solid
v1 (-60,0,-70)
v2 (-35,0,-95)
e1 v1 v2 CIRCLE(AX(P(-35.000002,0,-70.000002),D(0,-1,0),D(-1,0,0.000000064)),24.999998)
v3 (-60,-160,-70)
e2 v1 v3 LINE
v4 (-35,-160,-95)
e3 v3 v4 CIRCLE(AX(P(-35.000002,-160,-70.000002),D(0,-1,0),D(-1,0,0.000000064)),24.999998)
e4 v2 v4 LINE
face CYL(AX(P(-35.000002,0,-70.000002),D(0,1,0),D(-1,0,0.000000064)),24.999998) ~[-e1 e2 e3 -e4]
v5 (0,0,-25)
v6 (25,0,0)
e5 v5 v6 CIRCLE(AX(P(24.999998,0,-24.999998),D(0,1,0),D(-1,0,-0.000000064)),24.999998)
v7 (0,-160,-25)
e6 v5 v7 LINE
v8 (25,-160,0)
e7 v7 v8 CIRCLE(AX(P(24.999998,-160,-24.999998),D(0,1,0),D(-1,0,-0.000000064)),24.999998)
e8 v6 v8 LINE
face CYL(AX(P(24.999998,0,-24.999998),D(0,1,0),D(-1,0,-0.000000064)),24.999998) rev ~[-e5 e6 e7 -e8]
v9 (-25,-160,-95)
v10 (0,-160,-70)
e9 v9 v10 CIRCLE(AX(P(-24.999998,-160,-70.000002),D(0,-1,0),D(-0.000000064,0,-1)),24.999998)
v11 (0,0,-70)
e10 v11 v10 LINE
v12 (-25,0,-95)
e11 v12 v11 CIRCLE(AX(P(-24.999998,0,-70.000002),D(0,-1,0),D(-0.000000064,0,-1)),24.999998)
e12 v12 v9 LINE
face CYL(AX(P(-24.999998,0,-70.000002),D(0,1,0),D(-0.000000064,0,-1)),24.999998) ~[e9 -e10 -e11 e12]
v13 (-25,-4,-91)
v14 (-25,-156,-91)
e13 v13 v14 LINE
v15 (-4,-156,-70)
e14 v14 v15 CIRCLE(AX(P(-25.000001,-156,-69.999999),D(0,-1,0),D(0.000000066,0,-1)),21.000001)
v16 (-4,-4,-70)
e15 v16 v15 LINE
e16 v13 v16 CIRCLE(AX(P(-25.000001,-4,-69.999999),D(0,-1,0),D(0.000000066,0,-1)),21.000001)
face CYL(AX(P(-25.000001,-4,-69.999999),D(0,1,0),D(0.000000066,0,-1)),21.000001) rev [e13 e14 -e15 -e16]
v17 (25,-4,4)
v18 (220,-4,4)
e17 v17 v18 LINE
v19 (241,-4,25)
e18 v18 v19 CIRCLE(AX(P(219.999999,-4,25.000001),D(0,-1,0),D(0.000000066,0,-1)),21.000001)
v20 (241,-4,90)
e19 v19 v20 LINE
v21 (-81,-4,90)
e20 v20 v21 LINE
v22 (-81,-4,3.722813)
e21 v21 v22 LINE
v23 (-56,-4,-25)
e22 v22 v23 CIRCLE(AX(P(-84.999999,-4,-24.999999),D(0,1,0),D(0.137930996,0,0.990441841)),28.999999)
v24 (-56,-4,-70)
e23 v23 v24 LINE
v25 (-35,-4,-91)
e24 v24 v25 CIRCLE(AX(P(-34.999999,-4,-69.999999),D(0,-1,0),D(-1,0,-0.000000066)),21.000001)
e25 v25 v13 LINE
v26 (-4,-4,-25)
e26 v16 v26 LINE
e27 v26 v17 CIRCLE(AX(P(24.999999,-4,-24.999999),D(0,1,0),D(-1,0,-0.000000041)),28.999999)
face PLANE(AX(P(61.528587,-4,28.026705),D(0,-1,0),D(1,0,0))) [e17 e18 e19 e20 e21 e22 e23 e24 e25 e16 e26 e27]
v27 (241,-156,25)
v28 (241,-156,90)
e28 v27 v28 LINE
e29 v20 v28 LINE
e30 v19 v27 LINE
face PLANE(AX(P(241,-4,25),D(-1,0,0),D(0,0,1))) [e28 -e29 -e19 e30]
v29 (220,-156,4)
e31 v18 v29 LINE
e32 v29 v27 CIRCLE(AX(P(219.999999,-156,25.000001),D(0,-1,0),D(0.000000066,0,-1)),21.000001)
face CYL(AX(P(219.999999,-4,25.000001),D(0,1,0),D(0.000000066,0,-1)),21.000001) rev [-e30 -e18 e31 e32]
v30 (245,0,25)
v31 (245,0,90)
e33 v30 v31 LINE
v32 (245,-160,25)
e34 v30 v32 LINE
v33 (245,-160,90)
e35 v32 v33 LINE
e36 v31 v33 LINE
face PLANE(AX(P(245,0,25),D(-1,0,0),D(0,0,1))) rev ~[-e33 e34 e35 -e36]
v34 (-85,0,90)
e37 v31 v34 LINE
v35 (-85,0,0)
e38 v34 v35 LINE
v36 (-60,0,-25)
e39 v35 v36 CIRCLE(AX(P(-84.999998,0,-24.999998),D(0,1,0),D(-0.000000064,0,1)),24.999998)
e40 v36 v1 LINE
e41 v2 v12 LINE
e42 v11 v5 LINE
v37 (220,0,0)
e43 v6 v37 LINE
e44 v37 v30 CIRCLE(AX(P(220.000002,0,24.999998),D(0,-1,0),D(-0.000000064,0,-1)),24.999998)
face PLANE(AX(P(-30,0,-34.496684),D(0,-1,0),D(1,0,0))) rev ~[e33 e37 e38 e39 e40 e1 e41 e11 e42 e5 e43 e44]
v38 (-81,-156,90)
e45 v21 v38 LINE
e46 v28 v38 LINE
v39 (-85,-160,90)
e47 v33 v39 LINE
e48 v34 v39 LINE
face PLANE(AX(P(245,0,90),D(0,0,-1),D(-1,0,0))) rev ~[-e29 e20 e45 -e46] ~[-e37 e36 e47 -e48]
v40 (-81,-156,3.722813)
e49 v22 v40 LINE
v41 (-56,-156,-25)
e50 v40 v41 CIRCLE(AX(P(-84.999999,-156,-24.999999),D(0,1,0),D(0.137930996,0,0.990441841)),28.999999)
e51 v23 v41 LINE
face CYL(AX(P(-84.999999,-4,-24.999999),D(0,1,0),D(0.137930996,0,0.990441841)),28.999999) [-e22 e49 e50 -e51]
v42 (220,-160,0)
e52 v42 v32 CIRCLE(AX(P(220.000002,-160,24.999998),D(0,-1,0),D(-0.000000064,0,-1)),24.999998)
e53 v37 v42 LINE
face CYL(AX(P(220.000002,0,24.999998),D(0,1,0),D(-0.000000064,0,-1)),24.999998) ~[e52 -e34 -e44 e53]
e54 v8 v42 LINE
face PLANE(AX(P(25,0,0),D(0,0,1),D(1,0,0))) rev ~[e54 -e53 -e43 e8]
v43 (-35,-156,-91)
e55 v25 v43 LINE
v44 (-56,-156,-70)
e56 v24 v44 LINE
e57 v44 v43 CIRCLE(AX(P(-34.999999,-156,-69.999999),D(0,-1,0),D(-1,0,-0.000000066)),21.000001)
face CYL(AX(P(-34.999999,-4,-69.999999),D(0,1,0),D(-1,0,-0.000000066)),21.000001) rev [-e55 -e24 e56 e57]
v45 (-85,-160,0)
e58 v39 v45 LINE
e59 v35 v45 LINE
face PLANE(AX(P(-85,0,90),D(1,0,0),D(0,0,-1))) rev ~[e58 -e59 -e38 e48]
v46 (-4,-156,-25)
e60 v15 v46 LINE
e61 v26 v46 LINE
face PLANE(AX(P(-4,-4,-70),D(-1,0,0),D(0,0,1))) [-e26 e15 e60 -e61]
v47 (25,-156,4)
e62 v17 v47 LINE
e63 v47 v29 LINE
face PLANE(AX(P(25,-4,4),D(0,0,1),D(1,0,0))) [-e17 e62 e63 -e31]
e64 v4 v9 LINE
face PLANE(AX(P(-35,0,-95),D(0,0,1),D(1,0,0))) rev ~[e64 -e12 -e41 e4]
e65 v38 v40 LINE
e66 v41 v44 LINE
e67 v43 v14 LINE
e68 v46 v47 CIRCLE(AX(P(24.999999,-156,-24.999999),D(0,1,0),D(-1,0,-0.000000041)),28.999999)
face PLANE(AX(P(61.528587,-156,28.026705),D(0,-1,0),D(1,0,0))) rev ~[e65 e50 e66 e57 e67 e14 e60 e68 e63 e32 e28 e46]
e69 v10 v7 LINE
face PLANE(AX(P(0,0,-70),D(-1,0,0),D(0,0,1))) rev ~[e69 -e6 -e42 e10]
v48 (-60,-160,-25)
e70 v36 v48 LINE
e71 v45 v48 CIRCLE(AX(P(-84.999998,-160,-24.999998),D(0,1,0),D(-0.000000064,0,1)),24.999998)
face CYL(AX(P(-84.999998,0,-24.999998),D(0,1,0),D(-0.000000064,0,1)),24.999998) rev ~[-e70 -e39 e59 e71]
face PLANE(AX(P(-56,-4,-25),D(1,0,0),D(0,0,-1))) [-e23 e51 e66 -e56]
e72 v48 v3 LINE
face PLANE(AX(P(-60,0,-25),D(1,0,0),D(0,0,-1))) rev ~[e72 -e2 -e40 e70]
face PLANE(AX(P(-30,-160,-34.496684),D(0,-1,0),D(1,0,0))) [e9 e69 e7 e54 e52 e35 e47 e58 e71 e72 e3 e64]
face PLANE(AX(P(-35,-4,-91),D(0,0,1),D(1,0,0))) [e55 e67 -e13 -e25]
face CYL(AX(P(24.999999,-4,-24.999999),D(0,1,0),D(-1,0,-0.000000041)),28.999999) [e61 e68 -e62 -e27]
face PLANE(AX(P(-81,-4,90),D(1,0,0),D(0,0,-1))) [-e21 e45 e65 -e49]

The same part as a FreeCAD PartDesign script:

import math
import FreeCAD as App
import Part
import Sketcher

V = App.Vector

doc = App.newDocument("Part")
body = doc.addObject("PartDesign::Body", "Body")

# Sketch on XZ plane
sketch1 = body.newObject("Sketcher::SketchObject", "Sketch")
sketch1.AttachmentSupport = (doc.getObject("XZ_Plane"), [""])
sketch1.MapMode = "FlatFace"
sketch1.addGeometry(Part.LineSegment(V(0, -70, 0), V(0, -25, 0)), False)
sketch1.addGeometry(Part.ArcOfCircle(Part.Circle(V(25, -25, 0), V(0, 0, 1), 25), math.radians(90), math.radians(180)), False)
sketch1.addGeometry(Part.LineSegment(V(25, 0, 0), V(220, 0, 0)), False)
sketch1.addGeometry(Part.ArcOfCircle(Part.Circle(V(220, 25, 0), V(0, 0, 1), 25), math.radians(-90), math.radians(0)), False)
sketch1.addGeometry(Part.LineSegment(V(245, 25, 0), V(245, 90, 0)), False)
sketch1.addGeometry(Part.LineSegment(V(245, 90, 0), V(-85, 90, 0)), False)
sketch1.addGeometry(Part.LineSegment(V(-85, 90, 0), V(-85, 0, 0)), False)
sketch1.addGeometry(Part.ArcOfCircle(Part.Circle(V(-85, -25, 0), V(0, 0, 1), 25), math.radians(0), math.radians(90)), False)
sketch1.addGeometry(Part.LineSegment(V(-60, -25, 0), V(-60, -70, 0)), False)
sketch1.addGeometry(Part.ArcOfCircle(Part.Circle(V(-35, -70, 0), V(0, 0, 1), 25), math.radians(180), math.radians(270)), False)
sketch1.addGeometry(Part.LineSegment(V(-35, -95, 0), V(-25, -95, 0)), False)
sketch1.addGeometry(Part.ArcOfCircle(Part.Circle(V(-25, -70, 0), V(0, 0, 1), 25), math.radians(-90), math.radians(0)), False)
sketch1.addConstraint(Sketcher.Constraint("Tangent", 0, 2, 1, 2))
sketch1.addConstraint(Sketcher.Constraint("Tangent", 1, 1, 2, 1))
sketch1.addConstraint(Sketcher.Constraint("Tangent", 2, 2, 3, 1))
sketch1.addConstraint(Sketcher.Constraint("Tangent", 3, 2, 4, 1))
sketch1.addConstraint(Sketcher.Constraint("Coincident", 4, 2, 5, 1))
sketch1.addConstraint(Sketcher.Constraint("Coincident", 5, 2, 6, 1))
sketch1.addConstraint(Sketcher.Constraint("Coincident", 6, 2, 7, 2))
sketch1.addConstraint(Sketcher.Constraint("Tangent", 7, 1, 8, 1))
sketch1.addConstraint(Sketcher.Constraint("Tangent", 8, 2, 9, 1))
sketch1.addConstraint(Sketcher.Constraint("Tangent", 9, 2, 10, 1))
sketch1.addConstraint(Sketcher.Constraint("Tangent", 10, 2, 11, 1))
sketch1.addConstraint(Sketcher.Constraint("Tangent", 11, 2, 0, 1))
sketch1.addConstraint(Sketcher.Constraint("Vertical", 0))
sketch1.addConstraint(Sketcher.Constraint("Horizontal", 2))
sketch1.addConstraint(Sketcher.Constraint("Vertical", 4))
sketch1.addConstraint(Sketcher.Constraint("Horizontal", 5))
sketch1.addConstraint(Sketcher.Constraint("Vertical", 6))
sketch1.addConstraint(Sketcher.Constraint("Vertical", 8))
sketch1.addConstraint(Sketcher.Constraint("Horizontal", 10))
sketch1.addConstraint(Sketcher.Constraint("Equal", 1, 3))
sketch1.addConstraint(Sketcher.Constraint("Equal", 3, 7))
sketch1.addConstraint(Sketcher.Constraint("Equal", 7, 9))
sketch1.addConstraint(Sketcher.Constraint("Equal", 9, 11))
sketch1.addConstraint(Sketcher.Constraint("PointOnObject", 0, 2, -2))
sketch1.addConstraint(Sketcher.Constraint("PointOnObject", 1, 1, -1))
sketch1.addConstraint(Sketcher.Constraint("PointOnObject", 6, 2, -1))
sketch1.addConstraint(Sketcher.Constraint("Vertical", 7, 3, 5, 2))
sketch1.addConstraint(Sketcher.Constraint("Radius", 1, 24.999998))
sketch1.addConstraint(Sketcher.Constraint("DistanceX", 2, 1, 2, 2, 195.0))
sketch1.addConstraint(Sketcher.Constraint("DistanceX", 5, 2, 5, 1, 330.0))
sketch1.addConstraint(Sketcher.Constraint("DistanceY", 0, 1, 0, 2, 45.0))
sketch1.addConstraint(Sketcher.Constraint("DistanceY", 4, 1, 4, 2, 65.0))
pad1 = body.newObject("PartDesign::Pad", "Pad")
pad1.Profile = sketch1
pad1.Length = 160

# Sketch on XZ plane
sketch2 = body.newObject("Sketcher::SketchObject", "Sketch001")
sketch2.AttachmentSupport = (doc.getObject("XZ_Plane"), [""])
sketch2.MapMode = "FlatFace"
sketch2.AttachmentOffset = App.Placement(V(0, 0, 4), App.Rotation())
sketch2.addGeometry(Part.LineSegment(V(-35, -91, 0), V(-25, -91, 0)), False)
sketch2.addGeometry(Part.ArcOfCircle(Part.Circle(V(-25, -70, 0), V(0, 0, 1), 21), math.radians(-90), math.radians(0)), False)
sketch2.addGeometry(Part.LineSegment(V(-4, -70, 0), V(-4, -25, 0)), False)
sketch2.addGeometry(Part.ArcOfCircle(Part.Circle(V(25, -25, 0), V(0, 0, 1), 29), math.radians(90), math.radians(180)), False)
sketch2.addGeometry(Part.LineSegment(V(25, 4, 0), V(220, 4, 0)), False)
sketch2.addGeometry(Part.ArcOfCircle(Part.Circle(V(220, 25, 0), V(0, 0, 1), 21), math.radians(-90), math.radians(0)), False)
sketch2.addGeometry(Part.LineSegment(V(241, 25, 0), V(241, 90, 0)), False)
sketch2.addGeometry(Part.LineSegment(V(241, 90, 0), V(-81, 90, 0)), False)
sketch2.addGeometry(Part.LineSegment(V(-81, 90, 0), V(-81, 4, 0)), False)
sketch2.addGeometry(Part.ArcOfCircle(Part.Circle(V(-85, -25, 0), V(0, 0, 1), 29), math.radians(0), math.radians(82)), False)
sketch2.addGeometry(Part.LineSegment(V(-56, -25, 0), V(-56, -70, 0)), False)
sketch2.addGeometry(Part.ArcOfCircle(Part.Circle(V(-35, -70, 0), V(0, 0, 1), 21), math.radians(-180), math.radians(-90)), False)
sketch2.addConstraint(Sketcher.Constraint("Tangent", 0, 2, 1, 1))
sketch2.addConstraint(Sketcher.Constraint("Tangent", 1, 2, 2, 1))
sketch2.addConstraint(Sketcher.Constraint("Tangent", 2, 2, 3, 2))
sketch2.addConstraint(Sketcher.Constraint("Tangent", 3, 1, 4, 1))
sketch2.addConstraint(Sketcher.Constraint("Tangent", 4, 2, 5, 1))
sketch2.addConstraint(Sketcher.Constraint("Tangent", 5, 2, 6, 1))
sketch2.addConstraint(Sketcher.Constraint("Coincident", 6, 2, 7, 1))
sketch2.addConstraint(Sketcher.Constraint("Coincident", 7, 2, 8, 1))
sketch2.addConstraint(Sketcher.Constraint("Coincident", 8, 2, 9, 2))
sketch2.addConstraint(Sketcher.Constraint("Tangent", 9, 1, 10, 1))
sketch2.addConstraint(Sketcher.Constraint("Tangent", 10, 2, 11, 1))
sketch2.addConstraint(Sketcher.Constraint("Tangent", 11, 2, 0, 1))
sketch2.addConstraint(Sketcher.Constraint("Horizontal", 0))
sketch2.addConstraint(Sketcher.Constraint("Vertical", 2))
sketch2.addConstraint(Sketcher.Constraint("Horizontal", 4))
sketch2.addConstraint(Sketcher.Constraint("Vertical", 6))
sketch2.addConstraint(Sketcher.Constraint("Horizontal", 7))
sketch2.addConstraint(Sketcher.Constraint("Vertical", 8))
sketch2.addConstraint(Sketcher.Constraint("Vertical", 10))
sketch2.addConstraint(Sketcher.Constraint("Equal", 1, 5))
sketch2.addConstraint(Sketcher.Constraint("Equal", 3, 9))
sketch2.addConstraint(Sketcher.Constraint("Equal", 5, 11))
sketch2.addConstraint(Sketcher.Constraint("Horizontal", 3, 3, 9, 3))
sketch2.addConstraint(Sketcher.Constraint("Radius", 1, 21.000001))
sketch2.addConstraint(Sketcher.Constraint("Radius", 3, 28.999999))
sketch2.addConstraint(Sketcher.Constraint("DistanceX", 0, 1, 0, 2, 10.0))
sketch2.addConstraint(Sketcher.Constraint("DistanceX", 4, 1, 4, 2, 195.0))
sketch2.addConstraint(Sketcher.Constraint("DistanceX", 7, 2, 7, 1, 322.0))
sketch2.addConstraint(Sketcher.Constraint("DistanceY", 2, 1, 2, 2, 45.0))
sketch2.addConstraint(Sketcher.Constraint("DistanceY", 6, 1, 6, 2, 65.0))
sketch2.addConstraint(Sketcher.Constraint("DistanceX", 1, 3, -1, 1, 25.000001))
sketch2.addConstraint(Sketcher.Constraint("DistanceY", 1, 3, -1, 1, 69.999999))
pocket1 = body.newObject("PartDesign::Pocket", "Pocket")
pocket1.Profile = sketch2
pocket1.Length = 152
pocket1.Reversed = True

doc.recompute()
